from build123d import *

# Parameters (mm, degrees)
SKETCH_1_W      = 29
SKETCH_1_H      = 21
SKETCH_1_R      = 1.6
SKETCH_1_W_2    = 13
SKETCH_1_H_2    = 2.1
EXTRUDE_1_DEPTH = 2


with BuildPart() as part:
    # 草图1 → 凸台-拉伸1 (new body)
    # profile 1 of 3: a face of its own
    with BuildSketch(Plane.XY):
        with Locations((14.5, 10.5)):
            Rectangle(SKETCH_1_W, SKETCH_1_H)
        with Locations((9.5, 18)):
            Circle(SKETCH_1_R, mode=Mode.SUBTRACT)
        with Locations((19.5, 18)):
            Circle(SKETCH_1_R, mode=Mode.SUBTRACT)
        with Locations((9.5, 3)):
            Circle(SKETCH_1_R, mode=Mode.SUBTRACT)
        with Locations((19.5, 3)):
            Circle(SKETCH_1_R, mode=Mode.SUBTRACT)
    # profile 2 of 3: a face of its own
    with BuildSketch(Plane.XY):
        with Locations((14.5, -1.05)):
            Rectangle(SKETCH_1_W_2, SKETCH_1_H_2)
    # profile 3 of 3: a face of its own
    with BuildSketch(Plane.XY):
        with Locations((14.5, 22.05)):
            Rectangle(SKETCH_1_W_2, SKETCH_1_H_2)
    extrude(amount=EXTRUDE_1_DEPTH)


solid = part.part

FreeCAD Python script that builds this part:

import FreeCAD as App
import Part
import Sketcher
from FreeCAD import Vector
Q = App.Units.Quantity

doc = App.newDocument("Part")
params = doc.addObject("Spreadsheet::Sheet", "Params")
for row, (alias, value) in enumerate([
    ("sketch1_diameter", "3.2 mm"),
    ("sketch1_width", "8 mm"),
    ("sketch1_width2", "13 mm"),
    ("sketch1_height", "21 mm"),
    ("sketch1_height2", "2.1 mm"),
    ("pad1_length", "2 mm"),
], start=1):
    params.set(f"A{row}", alias)
    params.set(f"B{row}", "=" + value)
    params.setAlias(f"B{row}", alias)

body = doc.addObject("PartDesign::Body", "Body")

sketch1 = body.newObject("Sketcher::SketchObject", "Sketch")
sketch1.AttachmentSupport = (doc.getObject("XY_Plane"), [""])
sketch1.MapMode = "FlatFace"
sketch1.addGeometry([
    Part.LineSegment(Vector(0, 21, 0), Vector(0, 0, 0)),
    Part.LineSegment(Vector(0, 0, 0), Vector(8, 0, 0)),
    Part.LineSegment(Vector(8, 0, 0), Vector(8, -2.1, 0)),
    Part.LineSegment(Vector(8, -2.1, 0), Vector(21, -2.1, 0)),
    Part.LineSegment(Vector(21, -2.1, 0), Vector(21, 0, 0)),
    Part.LineSegment(Vector(21, 0, 0), Vector(29, 0, 0)),
    Part.LineSegment(Vector(29, 0, 0), Vector(29, 21, 0)),
    Part.LineSegment(Vector(29, 21, 0), Vector(21, 21, 0)),
    Part.LineSegment(Vector(21, 21, 0), Vector(21, 23.1, 0)),
    Part.LineSegment(Vector(21, 23.1, 0), Vector(8, 23.1, 0)),
    Part.LineSegment(Vector(8, 23.1, 0), Vector(8, 21, 0)),
    Part.LineSegment(Vector(8, 21, 0), Vector(0, 21, 0)),
    Part.Circle(Vector(9.5, 3, 0), Vector(0, 0, 1), 1.6),
    Part.Circle(Vector(19.5, 3, 0), Vector(0, 0, 1), 1.6),
    Part.Circle(Vector(9.5, 18, 0), Vector(0, 0, 1), 1.6),
    Part.Circle(Vector(19.5, 18, 0), Vector(0, 0, 1), 1.6),
], False)
sketch1.addConstraint([
    Sketcher.Constraint("Coincident", 0, 2, 1, 1),
    Sketcher.Constraint("Coincident", 1, 2, 2, 1),
    Sketcher.Constraint("Coincident", 2, 2, 3, 1),
    Sketcher.Constraint("Coincident", 3, 2, 4, 1),
    Sketcher.Constraint("Coincident", 4, 2, 5, 1),
    Sketcher.Constraint("Coincident", 5, 2, 6, 1),
    Sketcher.Constraint("Coincident", 6, 2, 7, 1),
    Sketcher.Constraint("Coincident", 7, 2, 8, 1),
    Sketcher.Constraint("Coincident", 8, 2, 9, 1),
    Sketcher.Constraint("Coincident", 9, 2, 10, 1),
    Sketcher.Constraint("Coincident", 10, 2, 11, 1),
    Sketcher.Constraint("Coincident", 11, 2, 0, 1),
    Sketcher.Constraint("Vertical", 0),
    Sketcher.Constraint("Horizontal", 1),
    Sketcher.Constraint("Vertical", 2),
    Sketcher.Constraint("Horizontal", 3),
    Sketcher.Constraint("Vertical", 4),
    Sketcher.Constraint("Horizontal", 5),
    Sketcher.Constraint("Vertical", 6),
    Sketcher.Constraint("Horizontal", 7),
    Sketcher.Constraint("Vertical", 8),
    Sketcher.Constraint("Horizontal", 9),
    Sketcher.Constraint("Vertical", 10),
    Sketcher.Constraint("Horizontal", 11),
    Sketcher.Constraint("Coincident", 0, 2, -1, 1),
    Sketcher.Constraint("Equal", 12, 13),
    Sketcher.Constraint("Equal", 13, 14),
    Sketcher.Constraint("Equal", 14, 15),
    Sketcher.Constraint("PointOnObject", 4, 2, -1),
    Sketcher.Constraint("Horizontal", 12, 3, 13, 3),
    Sketcher.Constraint("Horizontal", 14, 3, 15, 3),
    Sketcher.Constraint("Horizontal", 7, 2, 10, 2),
    Sketcher.Constraint("Vertical", 12, 3, 14, 3),
    Sketcher.Constraint("Vertical", 13, 3, 15, 3),
    Sketcher.Constraint("Vertical", 4, 2, 7, 2),
    Sketcher.Constraint("Vertical", 2, 2, 9, 2),
    Sketcher.Constraint("Equal", 1, 5),
    Sketcher.Constraint("Equal", 4, 8),
    Sketcher.Constraint("Diameter", 12, Q("3.2 mm")),
    Sketcher.Constraint("DistanceX", 1, 1, 1, 2, Q("8 mm")),
    Sketcher.Constraint("DistanceX", 3, 1, 3, 2, Q("13 mm")),
    Sketcher.Constraint("DistanceY", 0, 2, 0, 1, Q("21 mm")),
    Sketcher.Constraint("DistanceY", 2, 2, 2, 1, Q("2.1 mm")),
    Sketcher.Constraint("DistanceY", -1, 1, 12, 3, Q("3 mm")),
    Sketcher.Constraint("DistanceY", -1, 1, 14, 3, Q("18 mm")),
    Sketcher.Constraint("DistanceX", 12, 3, 13, 3, Q("10 mm")),
    Sketcher.Constraint("DistanceX", -1, 1, 12, 3, Q("9.5 mm")),
])
sketch1.setExpression("Constraints[38]", "Params.sketch1_diameter")
sketch1.setExpression("Constraints[39]", "Params.sketch1_width")
sketch1.setExpression("Constraints[40]", "Params.sketch1_width2")
sketch1.setExpression("Constraints[41]", "Params.sketch1_height")
sketch1.setExpression("Constraints[42]", "Params.sketch1_height2")
pad1 = body.newObject("PartDesign::Pad", "Pad")
pad1.Profile = sketch1
pad1.setExpression("Length", "Params.pad1_length")

doc.recompute()
